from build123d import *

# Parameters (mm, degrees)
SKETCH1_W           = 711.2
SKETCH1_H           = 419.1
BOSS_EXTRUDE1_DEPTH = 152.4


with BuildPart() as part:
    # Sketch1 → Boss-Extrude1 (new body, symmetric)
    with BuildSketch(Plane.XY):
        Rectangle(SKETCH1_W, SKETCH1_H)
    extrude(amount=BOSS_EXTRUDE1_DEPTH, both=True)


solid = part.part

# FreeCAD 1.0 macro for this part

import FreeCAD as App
import Part
import Sketcher
Q = App.Units.Quantity


def add_polygon(sketch, points):
    """Adds a closed chain of lines whose ends are joined by coincident constraints."""
    first, n = sketch.GeometryCount, len(points)
    for a, b in zip(points, points[1:] + points[:1]):
        sketch.addGeometry(Part.LineSegment(App.Vector(*a, 0), App.Vector(*b, 0)), False)
    for i in range(n):
        sketch.addConstraint(Sketcher.Constraint("Coincident", first + i, 2, first + (i + 1) % n, 1))

doc = App.newDocument("Part")
body = doc.addObject("PartDesign::Body", "Body")

# Sketch on XY plane
sketch1 = doc.addObject("Sketcher::SketchObject", "Sketch")
body.addObject(sketch1)
sketch1.AttachmentSupport = (doc.XY_Plane, [""])
sketch1.MapMode = "FlatFace"
add_polygon(sketch1, [(-356, 210), (-356, -210), (356, -210), (356, 210)])  # lines 0-3
sketch1.addConstraint([
    Sketcher.Constraint("Vertical", 0),
    Sketcher.Constraint("Horizontal", 1),
    Sketcher.Constraint("Vertical", 2),
    Sketcher.Constraint("Horizontal", 3),
    Sketcher.Constraint("Symmetric", 0, 2, 2, 2, -1, 1),
    Sketcher.Constraint("DistanceX", 1, 1, 1, 2, Q("28 in")),
    Sketcher.Constraint("DistanceY", 0, 2, 0, 1, Q("16.5 in")),
])
pad1 = doc.addObject("PartDesign::Pad", "Pad")
body.addObject(pad1)
pad1.Profile = sketch1
pad1.Length = Q("12 in")
pad1.Midplane = True

doc.recompute()
